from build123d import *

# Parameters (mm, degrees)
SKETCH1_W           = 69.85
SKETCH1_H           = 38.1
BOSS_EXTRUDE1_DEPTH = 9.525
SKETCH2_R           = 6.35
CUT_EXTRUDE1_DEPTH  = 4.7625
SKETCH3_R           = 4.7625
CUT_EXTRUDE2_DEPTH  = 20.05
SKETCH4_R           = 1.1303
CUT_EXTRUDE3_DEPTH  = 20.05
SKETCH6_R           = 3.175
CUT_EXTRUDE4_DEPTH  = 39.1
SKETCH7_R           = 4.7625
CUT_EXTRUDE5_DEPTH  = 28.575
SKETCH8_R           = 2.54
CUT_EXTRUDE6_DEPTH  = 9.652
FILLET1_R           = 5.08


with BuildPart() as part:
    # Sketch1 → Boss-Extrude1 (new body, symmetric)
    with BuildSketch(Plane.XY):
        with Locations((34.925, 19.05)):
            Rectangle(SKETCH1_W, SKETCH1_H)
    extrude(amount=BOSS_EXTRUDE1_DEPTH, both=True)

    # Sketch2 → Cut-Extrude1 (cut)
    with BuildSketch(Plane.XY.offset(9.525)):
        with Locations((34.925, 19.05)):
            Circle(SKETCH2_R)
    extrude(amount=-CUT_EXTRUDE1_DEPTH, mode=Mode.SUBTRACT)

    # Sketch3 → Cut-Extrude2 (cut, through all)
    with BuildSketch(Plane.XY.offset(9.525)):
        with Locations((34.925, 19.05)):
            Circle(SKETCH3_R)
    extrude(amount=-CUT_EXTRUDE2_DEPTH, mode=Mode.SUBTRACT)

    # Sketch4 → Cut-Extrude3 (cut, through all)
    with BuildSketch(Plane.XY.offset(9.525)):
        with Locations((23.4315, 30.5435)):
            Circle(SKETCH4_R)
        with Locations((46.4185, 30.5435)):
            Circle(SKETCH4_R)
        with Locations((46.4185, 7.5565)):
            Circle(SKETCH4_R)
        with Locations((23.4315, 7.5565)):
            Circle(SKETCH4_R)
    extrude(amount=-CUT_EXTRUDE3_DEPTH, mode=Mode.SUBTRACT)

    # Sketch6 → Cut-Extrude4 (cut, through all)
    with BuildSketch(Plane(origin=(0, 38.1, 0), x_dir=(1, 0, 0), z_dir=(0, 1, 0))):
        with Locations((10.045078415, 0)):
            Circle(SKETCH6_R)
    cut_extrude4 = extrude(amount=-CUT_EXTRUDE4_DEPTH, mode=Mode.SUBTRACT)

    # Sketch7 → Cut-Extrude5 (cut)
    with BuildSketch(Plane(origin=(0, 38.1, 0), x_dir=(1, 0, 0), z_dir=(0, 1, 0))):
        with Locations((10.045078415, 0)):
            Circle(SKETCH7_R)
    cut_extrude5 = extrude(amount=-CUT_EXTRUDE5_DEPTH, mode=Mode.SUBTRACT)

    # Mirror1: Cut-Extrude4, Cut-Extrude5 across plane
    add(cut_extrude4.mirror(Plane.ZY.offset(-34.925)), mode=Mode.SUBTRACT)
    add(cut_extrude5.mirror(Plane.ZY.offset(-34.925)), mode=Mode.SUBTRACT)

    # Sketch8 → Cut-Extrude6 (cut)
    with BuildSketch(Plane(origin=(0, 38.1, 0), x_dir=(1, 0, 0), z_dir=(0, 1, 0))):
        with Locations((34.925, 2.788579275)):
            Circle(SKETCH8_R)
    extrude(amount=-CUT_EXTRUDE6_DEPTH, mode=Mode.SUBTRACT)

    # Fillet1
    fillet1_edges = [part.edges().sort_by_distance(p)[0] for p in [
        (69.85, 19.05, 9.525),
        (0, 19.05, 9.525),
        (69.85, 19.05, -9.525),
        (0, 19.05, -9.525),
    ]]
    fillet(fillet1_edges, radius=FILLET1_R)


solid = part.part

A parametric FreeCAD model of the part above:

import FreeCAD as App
import Part
import Sketcher
Q = App.Units.Quantity


def edges_at(feature, points):
    """Names of the edges that pass closest to the given points."""
    edges = feature.Shape.Edges
    near = lambda p: min(range(len(edges)), key=lambda i: edges[i].distToShape(Part.Vertex(*p))[0])
    return sorted({f"Edge{near(p) + 1}" for p in points})


def add_polygon(sketch, points):
    """Adds a closed chain of lines whose ends are joined by coincident constraints."""
    first, n = sketch.GeometryCount, len(points)
    for a, b in zip(points, points[1:] + points[:1]):
        sketch.addGeometry(Part.LineSegment(App.Vector(*a, 0), App.Vector(*b, 0)), False)
    for i in range(n):
        sketch.addConstraint(Sketcher.Constraint("Coincident", first + i, 2, first + (i + 1) % n, 1))

doc = App.newDocument("Part")
params = doc.addObject("Spreadsheet::Sheet", "Params")
for row, (alias, value) in enumerate([
    ("sketch1_height", "1.5 in"),
    ("sketch1_width", "2.75 in"),
    ("pad1_length", "0.75 in"),
    ("sketch2_diameter", "0.5 in"),
    ("pocket1_length", "0.1875 in"),
    ("sketch3_diameter", "0.375 in"),
    ("sketch4_diameter", "0.089 in"),
    ("sketch5_diameter", "0.25 in"),
    ("sketch6_diameter", "0.375 in"),
    ("pocket5_length", "1.125 in"),
    ("sketch7_diameter", "0.2 in"),
    ("pocket6_length", "0.38 in"),
    ("fillet_radius", "0.2 in"),
], start=1):
    params.set(f"A{row}", alias)
    params.set(f"B{row}", "=" + value)
    params.setAlias(f"B{row}", alias)

body = doc.addObject("PartDesign::Body", "Body")

# Sketch on XY plane
sketch1 = body.newObject("Sketcher::SketchObject", "Sketch")
sketch1.AttachmentSupport = (doc.getObject("XY_Plane"), [""])
sketch1.MapMode = "FlatFace"
add_polygon(sketch1, [(0, 38.1), (0, 0), (69.85, 0), (69.85, 38.1)])  # lines 0-3
sketch1.addConstraint([
    Sketcher.Constraint("Vertical", 0),
    Sketcher.Constraint("Horizontal", 1),
    Sketcher.Constraint("Vertical", 2),
    Sketcher.Constraint("Horizontal", 3),
    Sketcher.Constraint("Coincident", 0, 2, -1, 1),
    Sketcher.Constraint("DistanceY", 0, 2, 0, 1, Q("1.5 in")),
    Sketcher.Constraint("DistanceX", 1, 1, 1, 2, Q("2.75 in")),
])
sketch1.setExpression("Constraints[9]", "Params.sketch1_height")
sketch1.setExpression("Constraints[10]", "Params.sketch1_width")
pad1 = body.newObject("PartDesign::Pad", "Pad")
pad1.Profile = sketch1
pad1.setExpression("Length", "Params.pad1_length")
pad1.Midplane = True

# Sketch on XY plane
sketch2 = body.newObject("Sketcher::SketchObject", "Sketch001")
sketch2.AttachmentSupport = (doc.getObject("XY_Plane"), [""])
sketch2.MapMode = "FlatFace"
sketch2.AttachmentOffset = App.Placement(App.Vector(0, 0, 0.375 * 25.4), App.Rotation())
sketch2.addGeometry(Part.Circle(App.Vector(34.925, 19.05, 0), App.Vector(0, 0, 1), 6.35), False)
sketch2.addConstraint([
    Sketcher.Constraint("Diameter", 0, Q("0.5 in")),
    Sketcher.Constraint("DistanceY", -1, 1, 0, 3, Q("0.75 in")),
    Sketcher.Constraint("DistanceX", -1, 1, 0, 3, Q("1.375 in")),
])
sketch2.setExpression("Constraints[0]", "Params.sketch2_diameter")
pocket1 = body.newObject("PartDesign::Pocket", "Pocket")
pocket1.Profile = sketch2
pocket1.setExpression("Length", "Params.pocket1_length")

# Sketch on XY plane
sketch3 = body.newObject("Sketcher::SketchObject", "Sketch002")
sketch3.AttachmentSupport = (doc.getObject("XY_Plane"), [""])
sketch3.MapMode = "FlatFace"
sketch3.AttachmentOffset = App.Placement(App.Vector(0, 0, 0.375 * 25.4), App.Rotation())
sketch3.addGeometry(Part.Circle(App.Vector(34.925, 19.05, 0), App.Vector(0, 0, 1), 4.7625), False)
sketch3.addConstraint([
    Sketcher.Constraint("Diameter", 0, Q("0.375 in")),
    Sketcher.Constraint("DistanceY", -1, 1, 0, 3, Q("0.75 in")),
    Sketcher.Constraint("DistanceX", -1, 1, 0, 3, Q("1.375 in")),
])
sketch3.setExpression("Constraints[0]", "Params.sketch3_diameter")
pocket2 = body.newObject("PartDesign::Pocket", "Pocket001")
pocket2.Profile = sketch3
pocket2.Type = "ThroughAll"

# Sketch on XY plane
sketch4 = body.newObject("Sketcher::SketchObject", "Sketch003")
sketch4.AttachmentSupport = (doc.getObject("XY_Plane"), [""])
sketch4.MapMode = "FlatFace"
sketch4.AttachmentOffset = App.Placement(App.Vector(0, 0, 0.375 * 25.4), App.Rotation())
sketch4.addGeometry([
    Part.Circle(App.Vector(23.4315, 30.5435, 0), App.Vector(0, 0, 1), 1.1303),
    Part.Circle(App.Vector(46.4185, 30.5435, 0), App.Vector(0, 0, 1), 1.1303),
    Part.Circle(App.Vector(46.4185, 7.5565, 0), App.Vector(0, 0, 1), 1.1303),
    Part.Circle(App.Vector(23.4315, 7.5565, 0), App.Vector(0, 0, 1), 1.1303),
], False)
sketch4.addConstraint([
    Sketcher.Constraint("Equal", 0, 1),
    Sketcher.Constraint("Equal", 1, 2),
    Sketcher.Constraint("Equal", 2, 3),
    Sketcher.Constraint("Horizontal", 0, 3, 1, 3),
    Sketcher.Constraint("Horizontal", 2, 3, 3, 3),
    Sketcher.Constraint("Vertical", 1, 3, 2, 3),
    Sketcher.Constraint("Vertical", 0, 3, 3, 3),
    Sketcher.Constraint("Diameter", 0, Q("0.089 in")),
    Sketcher.Constraint("DistanceX", 0, 3, 1, 3, Q("0.905 in")),
    Sketcher.Constraint("DistanceY", 2, 3, 1, 3, Q("0.905 in")),
    Sketcher.Constraint("DistanceX", -1, 1, 0, 3, Q("0.9225 in")),
    Sketcher.Constraint("DistanceY", -1, 1, 0, 3, Q("1.2025 in")),
])
sketch4.setExpression("Constraints[7]", "Params.sketch4_diameter")
pocket3 = body.newObject("PartDesign::Pocket", "Pocket002")
pocket3.Profile = sketch4
pocket3.Type = "ThroughAll"

# Sketch on XZ plane
sketch5 = body.newObject("Sketcher::SketchObject", "Sketch004")
sketch5.AttachmentSupport = (doc.getObject("XZ_Plane"), [""])
sketch5.MapMode = "FlatFace"
sketch5.AttachmentOffset = App.Placement(App.Vector(0, 0, -1.5 * 25.4), App.Rotation())
sketch5.addGeometry(Part.Circle(App.Vector(10.045078, 0, 0), App.Vector(0, 0, 1), 3.175), False)
sketch5.addConstraint([
    Sketcher.Constraint("PointOnObject", 0, 3, -1),
    Sketcher.Constraint("Diameter", 0, Q("0.25 in")),
    Sketcher.Constraint("DistanceX", -1, 1, 0, 3, Q("10.045078 mm")),
])
sketch5.setExpression("Constraints[1]", "Params.sketch5_diameter")
pocket4 = body.newObject("PartDesign::Pocket", "Pocket003")
pocket4.Profile = sketch5
pocket4.Type = "ThroughAll"
pocket4.Reversed = True

# Sketch on XZ plane
sketch6 = body.newObject("Sketcher::SketchObject", "Sketch005")
sketch6.AttachmentSupport = (doc.getObject("XZ_Plane"), [""])
sketch6.MapMode = "FlatFace"
sketch6.AttachmentOffset = App.Placement(App.Vector(0, 0, -1.5 * 25.4), App.Rotation())
sketch6.addGeometry(Part.Circle(App.Vector(10.045078, 0, 0), App.Vector(0, 0, 1), 4.7625), False)
sketch6.addConstraint([
    Sketcher.Constraint("PointOnObject", 0, 3, -1),
    Sketcher.Constraint("Diameter", 0, Q("0.375 in")),
    Sketcher.Constraint("DistanceX", -1, 1, 0, 3, Q("10.045078 mm")),
])
sketch6.setExpression("Constraints[1]", "Params.sketch6_diameter")
pocket5 = body.newObject("PartDesign::Pocket", "Pocket004")
pocket5.Profile = sketch6
pocket5.setExpression("Length", "Params.pocket5_length")
pocket5.Reversed = True
doc.recompute()

datumplane = body.newObject("PartDesign::Plane", "DatumPlane")
datumplane.AttachmentSupport = (doc.getObject("YZ_Plane"), [""])
datumplane.MapMode = "FlatFace"
datumplane.AttachmentOffset = App.Placement(App.Vector(0, 0, 1.375 * 25.4), App.Rotation())
mirrored = body.newObject("PartDesign::Mirrored", "Mirrored")
mirrored.Originals = [pocket4, pocket5]
mirrored.MirrorPlane = (datumplane, [""])
body.Tip = mirrored

# Sketch on XZ plane
sketch7 = body.newObject("Sketcher::SketchObject", "Sketch006")
sketch7.AttachmentSupport = (doc.getObject("XZ_Plane"), [""])
sketch7.MapMode = "FlatFace"
sketch7.AttachmentOffset = App.Placement(App.Vector(0, 0, -1.5 * 25.4), App.Rotation())
sketch7.addGeometry(Part.Circle(App.Vector(34.925, -2.788579, 0), App.Vector(0, 0, 1), 2.54), False)
sketch7.addConstraint([
    Sketcher.Constraint("Diameter", 0, Q("0.2 in")),
    Sketcher.Constraint("DistanceX", -1, 1, 0, 3, Q("1.375 in")),
    Sketcher.Constraint("DistanceY", 0, 3, -1, 1, Q("2.788579 mm")),
])
sketch7.setExpression("Constraints[0]", "Params.sketch7_diameter")
pocket6 = body.newObject("PartDesign::Pocket", "Pocket005")
pocket6.Profile = sketch7
pocket6.setExpression("Length", "Params.pocket6_length")
pocket6.Reversed = True
doc.recompute()

fillet = body.newObject("PartDesign::Fillet", "Fillet")
fillet.Base = (pocket6, edges_at(pocket6, [
    (69.85, 19.05, 9.525),
    (0, 19.05, 9.525),
    (69.85, 19.05, -9.525),
    (0, 19.05, -9.525),
]))
fillet.setExpression("Radius", "Params.fillet_radius")

doc.recompute()
